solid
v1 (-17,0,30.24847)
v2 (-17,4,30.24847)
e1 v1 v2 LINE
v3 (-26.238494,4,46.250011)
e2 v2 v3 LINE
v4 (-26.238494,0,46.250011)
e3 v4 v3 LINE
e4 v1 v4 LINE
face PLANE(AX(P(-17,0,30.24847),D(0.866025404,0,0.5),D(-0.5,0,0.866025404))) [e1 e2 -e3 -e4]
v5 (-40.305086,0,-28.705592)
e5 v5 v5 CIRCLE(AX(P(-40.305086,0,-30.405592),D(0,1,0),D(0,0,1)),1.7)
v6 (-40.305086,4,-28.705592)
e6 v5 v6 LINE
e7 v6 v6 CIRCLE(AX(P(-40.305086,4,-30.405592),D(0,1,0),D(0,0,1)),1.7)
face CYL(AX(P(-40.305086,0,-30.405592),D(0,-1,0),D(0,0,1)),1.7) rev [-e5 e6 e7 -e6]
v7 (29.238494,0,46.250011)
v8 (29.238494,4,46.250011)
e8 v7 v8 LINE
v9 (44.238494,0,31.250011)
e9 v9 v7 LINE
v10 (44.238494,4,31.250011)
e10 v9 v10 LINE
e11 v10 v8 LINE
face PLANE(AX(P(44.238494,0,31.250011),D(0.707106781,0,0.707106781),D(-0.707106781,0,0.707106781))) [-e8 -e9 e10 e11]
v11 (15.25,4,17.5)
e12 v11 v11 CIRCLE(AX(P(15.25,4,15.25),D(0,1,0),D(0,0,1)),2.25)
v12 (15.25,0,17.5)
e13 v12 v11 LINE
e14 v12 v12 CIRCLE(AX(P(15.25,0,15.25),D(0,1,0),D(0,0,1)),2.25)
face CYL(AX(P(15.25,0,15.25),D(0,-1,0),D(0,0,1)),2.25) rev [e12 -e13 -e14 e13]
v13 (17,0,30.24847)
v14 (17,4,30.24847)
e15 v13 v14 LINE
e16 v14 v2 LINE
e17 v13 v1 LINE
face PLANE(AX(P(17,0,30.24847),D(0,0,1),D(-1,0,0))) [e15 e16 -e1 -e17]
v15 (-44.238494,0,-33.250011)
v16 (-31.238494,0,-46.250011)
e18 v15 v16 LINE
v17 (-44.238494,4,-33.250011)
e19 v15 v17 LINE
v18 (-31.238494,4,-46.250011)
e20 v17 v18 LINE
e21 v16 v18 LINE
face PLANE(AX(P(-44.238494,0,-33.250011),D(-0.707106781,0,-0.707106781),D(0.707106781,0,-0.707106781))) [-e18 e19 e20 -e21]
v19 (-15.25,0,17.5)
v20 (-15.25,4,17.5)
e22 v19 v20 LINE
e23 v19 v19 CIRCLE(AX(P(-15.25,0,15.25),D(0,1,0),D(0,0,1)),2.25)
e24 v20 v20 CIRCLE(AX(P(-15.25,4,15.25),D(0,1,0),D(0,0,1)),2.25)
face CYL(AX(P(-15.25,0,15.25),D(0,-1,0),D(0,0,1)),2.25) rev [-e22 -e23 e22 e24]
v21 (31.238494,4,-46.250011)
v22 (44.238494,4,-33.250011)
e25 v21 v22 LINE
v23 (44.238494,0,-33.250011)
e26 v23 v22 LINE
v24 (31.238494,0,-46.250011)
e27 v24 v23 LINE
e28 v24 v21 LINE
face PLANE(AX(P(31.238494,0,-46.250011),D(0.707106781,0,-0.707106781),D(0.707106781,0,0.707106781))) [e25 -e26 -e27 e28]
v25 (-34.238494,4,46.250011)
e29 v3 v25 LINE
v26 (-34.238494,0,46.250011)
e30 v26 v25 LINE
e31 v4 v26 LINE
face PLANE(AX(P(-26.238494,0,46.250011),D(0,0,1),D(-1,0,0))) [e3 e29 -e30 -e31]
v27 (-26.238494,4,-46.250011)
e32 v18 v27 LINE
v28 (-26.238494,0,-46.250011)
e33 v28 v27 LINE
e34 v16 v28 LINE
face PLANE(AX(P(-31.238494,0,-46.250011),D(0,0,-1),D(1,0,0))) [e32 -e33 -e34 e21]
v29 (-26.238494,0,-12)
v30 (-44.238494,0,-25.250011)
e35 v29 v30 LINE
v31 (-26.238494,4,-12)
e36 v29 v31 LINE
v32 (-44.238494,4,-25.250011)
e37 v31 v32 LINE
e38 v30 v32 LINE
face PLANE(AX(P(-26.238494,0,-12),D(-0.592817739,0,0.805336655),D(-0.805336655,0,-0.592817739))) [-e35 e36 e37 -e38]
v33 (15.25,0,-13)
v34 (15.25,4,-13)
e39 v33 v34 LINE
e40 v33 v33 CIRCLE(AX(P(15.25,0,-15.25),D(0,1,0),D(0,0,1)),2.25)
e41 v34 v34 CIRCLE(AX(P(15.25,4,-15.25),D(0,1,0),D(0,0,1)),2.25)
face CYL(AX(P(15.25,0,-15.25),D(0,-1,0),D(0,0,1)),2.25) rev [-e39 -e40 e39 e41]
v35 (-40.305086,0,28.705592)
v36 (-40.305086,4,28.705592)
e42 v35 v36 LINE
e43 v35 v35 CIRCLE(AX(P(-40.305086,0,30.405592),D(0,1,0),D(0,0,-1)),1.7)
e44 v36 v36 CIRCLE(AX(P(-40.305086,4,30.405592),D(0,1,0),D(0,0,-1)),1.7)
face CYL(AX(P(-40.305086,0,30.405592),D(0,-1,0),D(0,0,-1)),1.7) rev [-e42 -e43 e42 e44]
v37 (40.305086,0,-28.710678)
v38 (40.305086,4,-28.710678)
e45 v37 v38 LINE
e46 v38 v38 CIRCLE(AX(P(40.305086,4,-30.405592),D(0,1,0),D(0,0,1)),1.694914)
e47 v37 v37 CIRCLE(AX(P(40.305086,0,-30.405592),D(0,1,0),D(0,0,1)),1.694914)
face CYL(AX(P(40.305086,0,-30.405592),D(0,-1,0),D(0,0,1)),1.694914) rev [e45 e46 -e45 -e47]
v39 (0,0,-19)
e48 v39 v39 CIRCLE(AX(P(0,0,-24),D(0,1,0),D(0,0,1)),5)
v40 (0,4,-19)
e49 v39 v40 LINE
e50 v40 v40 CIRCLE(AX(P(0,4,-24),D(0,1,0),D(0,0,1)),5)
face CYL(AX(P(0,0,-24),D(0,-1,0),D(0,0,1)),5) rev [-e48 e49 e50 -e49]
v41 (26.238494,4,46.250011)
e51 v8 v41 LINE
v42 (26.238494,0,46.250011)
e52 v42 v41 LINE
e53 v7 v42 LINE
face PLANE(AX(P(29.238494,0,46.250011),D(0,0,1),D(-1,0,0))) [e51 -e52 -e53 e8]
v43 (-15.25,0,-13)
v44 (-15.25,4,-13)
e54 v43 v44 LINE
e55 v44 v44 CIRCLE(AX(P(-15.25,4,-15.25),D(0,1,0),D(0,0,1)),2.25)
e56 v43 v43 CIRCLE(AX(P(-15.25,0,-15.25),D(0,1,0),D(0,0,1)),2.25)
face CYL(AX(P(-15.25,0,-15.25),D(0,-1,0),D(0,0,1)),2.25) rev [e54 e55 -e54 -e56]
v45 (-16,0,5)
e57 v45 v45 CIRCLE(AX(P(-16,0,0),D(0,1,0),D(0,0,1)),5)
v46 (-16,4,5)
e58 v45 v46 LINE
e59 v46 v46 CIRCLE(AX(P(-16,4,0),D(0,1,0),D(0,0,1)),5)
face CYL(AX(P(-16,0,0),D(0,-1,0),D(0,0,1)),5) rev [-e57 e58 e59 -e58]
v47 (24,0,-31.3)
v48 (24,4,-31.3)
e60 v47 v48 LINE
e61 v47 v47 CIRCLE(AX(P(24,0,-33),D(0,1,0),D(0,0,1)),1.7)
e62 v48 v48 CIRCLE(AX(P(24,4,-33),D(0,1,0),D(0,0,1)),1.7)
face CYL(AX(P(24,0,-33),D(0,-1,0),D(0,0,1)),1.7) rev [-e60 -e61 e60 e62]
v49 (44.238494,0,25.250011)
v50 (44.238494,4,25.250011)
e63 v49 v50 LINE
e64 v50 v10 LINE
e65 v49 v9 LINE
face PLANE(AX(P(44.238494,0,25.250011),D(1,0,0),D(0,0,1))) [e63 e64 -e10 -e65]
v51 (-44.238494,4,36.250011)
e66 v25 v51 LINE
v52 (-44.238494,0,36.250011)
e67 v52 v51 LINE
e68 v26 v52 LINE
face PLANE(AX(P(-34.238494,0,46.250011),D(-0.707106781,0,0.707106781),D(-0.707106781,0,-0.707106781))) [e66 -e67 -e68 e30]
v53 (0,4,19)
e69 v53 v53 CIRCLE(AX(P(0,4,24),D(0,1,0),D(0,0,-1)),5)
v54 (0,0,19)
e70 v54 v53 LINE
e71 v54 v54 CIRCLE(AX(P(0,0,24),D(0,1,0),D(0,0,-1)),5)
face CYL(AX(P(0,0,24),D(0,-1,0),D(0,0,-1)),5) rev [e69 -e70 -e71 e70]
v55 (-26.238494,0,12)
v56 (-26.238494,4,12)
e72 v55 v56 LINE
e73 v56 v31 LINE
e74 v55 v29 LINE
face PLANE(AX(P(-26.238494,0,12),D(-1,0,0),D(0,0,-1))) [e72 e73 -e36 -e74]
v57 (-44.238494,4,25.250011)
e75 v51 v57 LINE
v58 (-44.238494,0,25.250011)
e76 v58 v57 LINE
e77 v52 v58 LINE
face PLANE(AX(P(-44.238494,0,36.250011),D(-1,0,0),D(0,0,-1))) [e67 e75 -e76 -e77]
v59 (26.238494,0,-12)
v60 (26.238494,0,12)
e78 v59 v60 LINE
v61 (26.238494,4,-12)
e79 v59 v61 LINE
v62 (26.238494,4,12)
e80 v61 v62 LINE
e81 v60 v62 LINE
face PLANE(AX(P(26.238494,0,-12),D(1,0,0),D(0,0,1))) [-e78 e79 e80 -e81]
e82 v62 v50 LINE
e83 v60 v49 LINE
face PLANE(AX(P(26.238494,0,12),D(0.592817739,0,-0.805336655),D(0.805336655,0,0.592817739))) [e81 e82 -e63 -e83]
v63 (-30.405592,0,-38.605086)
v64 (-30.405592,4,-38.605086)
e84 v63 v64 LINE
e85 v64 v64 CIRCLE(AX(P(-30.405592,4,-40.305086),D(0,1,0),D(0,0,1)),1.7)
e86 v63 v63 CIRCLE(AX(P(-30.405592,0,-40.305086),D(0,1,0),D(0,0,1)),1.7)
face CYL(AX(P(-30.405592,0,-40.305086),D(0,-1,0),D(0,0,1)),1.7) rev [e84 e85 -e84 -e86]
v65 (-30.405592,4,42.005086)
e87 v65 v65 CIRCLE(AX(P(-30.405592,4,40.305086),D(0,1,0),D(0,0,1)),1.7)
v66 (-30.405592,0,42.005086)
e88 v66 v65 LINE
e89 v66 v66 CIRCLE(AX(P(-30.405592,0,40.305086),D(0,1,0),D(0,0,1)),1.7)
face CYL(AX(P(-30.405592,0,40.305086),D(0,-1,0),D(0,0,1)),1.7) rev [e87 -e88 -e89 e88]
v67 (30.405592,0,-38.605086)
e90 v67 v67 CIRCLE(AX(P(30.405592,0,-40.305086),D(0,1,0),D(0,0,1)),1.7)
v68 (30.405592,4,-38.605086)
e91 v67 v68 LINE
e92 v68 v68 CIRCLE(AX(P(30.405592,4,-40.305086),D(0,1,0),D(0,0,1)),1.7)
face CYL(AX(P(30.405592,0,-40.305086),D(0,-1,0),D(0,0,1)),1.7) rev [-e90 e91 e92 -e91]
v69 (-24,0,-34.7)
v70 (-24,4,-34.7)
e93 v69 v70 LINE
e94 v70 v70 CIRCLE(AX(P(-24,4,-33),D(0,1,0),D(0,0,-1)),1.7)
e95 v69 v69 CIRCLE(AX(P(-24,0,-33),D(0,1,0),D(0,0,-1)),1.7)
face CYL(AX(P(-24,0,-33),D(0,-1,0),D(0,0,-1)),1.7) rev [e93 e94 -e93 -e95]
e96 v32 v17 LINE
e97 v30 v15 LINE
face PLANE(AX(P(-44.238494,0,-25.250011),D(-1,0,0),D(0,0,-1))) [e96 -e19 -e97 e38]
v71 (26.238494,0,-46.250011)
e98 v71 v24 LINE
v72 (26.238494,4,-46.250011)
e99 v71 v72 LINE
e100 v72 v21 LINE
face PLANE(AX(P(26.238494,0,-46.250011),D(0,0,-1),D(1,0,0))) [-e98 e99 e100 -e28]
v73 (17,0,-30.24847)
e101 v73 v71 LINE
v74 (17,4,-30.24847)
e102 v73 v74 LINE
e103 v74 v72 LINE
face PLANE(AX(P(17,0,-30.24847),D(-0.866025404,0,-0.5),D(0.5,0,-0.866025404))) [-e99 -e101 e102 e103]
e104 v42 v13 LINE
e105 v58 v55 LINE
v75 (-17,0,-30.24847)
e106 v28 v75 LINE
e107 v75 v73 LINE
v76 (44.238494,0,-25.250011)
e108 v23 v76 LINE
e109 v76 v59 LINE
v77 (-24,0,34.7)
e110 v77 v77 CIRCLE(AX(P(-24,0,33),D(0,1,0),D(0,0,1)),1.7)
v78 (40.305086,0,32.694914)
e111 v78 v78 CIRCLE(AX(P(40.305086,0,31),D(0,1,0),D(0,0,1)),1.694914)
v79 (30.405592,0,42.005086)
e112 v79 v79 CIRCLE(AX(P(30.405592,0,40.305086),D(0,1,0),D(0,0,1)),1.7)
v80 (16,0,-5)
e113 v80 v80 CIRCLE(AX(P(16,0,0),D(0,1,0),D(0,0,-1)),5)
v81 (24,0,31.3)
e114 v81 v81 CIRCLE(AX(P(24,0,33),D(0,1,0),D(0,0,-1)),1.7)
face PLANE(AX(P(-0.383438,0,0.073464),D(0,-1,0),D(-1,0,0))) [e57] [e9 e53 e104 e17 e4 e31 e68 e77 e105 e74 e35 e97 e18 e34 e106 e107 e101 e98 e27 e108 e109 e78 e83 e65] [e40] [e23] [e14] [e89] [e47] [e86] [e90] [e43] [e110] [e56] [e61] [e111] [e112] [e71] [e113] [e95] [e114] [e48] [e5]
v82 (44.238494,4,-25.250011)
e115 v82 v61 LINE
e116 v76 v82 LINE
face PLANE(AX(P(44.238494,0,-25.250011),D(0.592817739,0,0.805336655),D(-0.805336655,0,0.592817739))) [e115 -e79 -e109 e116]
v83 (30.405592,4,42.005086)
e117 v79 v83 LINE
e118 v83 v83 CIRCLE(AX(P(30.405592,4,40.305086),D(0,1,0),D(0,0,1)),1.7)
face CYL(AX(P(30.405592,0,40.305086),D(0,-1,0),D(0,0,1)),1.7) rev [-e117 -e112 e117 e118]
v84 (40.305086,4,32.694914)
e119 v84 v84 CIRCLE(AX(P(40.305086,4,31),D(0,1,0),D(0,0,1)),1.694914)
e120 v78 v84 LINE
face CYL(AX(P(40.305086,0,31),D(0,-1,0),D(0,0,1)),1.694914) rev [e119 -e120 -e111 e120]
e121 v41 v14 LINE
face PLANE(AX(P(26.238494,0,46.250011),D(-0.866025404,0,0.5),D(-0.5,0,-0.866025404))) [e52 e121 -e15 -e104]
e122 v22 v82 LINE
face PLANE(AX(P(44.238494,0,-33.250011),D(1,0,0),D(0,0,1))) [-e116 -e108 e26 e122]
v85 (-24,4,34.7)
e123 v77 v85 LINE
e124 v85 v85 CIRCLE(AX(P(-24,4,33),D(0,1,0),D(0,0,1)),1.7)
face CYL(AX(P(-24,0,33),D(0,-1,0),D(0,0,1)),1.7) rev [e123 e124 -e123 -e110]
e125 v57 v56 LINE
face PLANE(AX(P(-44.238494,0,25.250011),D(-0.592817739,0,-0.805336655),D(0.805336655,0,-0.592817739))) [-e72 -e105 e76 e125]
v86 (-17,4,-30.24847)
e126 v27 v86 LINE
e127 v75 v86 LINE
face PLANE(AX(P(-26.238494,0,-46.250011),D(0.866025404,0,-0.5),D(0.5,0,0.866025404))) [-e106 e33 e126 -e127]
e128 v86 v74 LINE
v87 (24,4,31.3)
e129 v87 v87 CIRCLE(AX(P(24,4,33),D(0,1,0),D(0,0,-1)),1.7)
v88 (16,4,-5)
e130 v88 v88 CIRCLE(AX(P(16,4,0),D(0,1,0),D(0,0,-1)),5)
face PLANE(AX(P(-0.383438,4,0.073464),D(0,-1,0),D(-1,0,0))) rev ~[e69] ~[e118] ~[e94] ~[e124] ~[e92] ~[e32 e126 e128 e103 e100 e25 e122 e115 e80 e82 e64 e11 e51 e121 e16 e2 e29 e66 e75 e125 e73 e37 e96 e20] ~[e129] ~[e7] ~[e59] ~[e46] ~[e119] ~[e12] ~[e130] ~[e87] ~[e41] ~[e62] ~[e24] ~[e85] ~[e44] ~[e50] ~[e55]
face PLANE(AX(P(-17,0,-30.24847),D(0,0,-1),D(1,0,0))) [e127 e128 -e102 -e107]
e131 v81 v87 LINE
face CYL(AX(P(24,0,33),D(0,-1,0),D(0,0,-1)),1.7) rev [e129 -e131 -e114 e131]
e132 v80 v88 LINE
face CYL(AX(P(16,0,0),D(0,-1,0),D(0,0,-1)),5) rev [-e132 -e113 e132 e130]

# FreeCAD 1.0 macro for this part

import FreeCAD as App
import Part
import Sketcher
from FreeCAD import Vector
Q = App.Units.Quantity


def add_polygon(sketch, points):
    """Adds a closed chain of lines whose ends are joined by coincident constraints."""
    first, n = sketch.GeometryCount, len(points)
    for a, b in zip(points, points[1:] + points[:1]):
        sketch.addGeometry(Part.LineSegment(App.Vector(*a, 0), App.Vector(*b, 0)), False)
    for i in range(n):
        sketch.addConstraint(Sketcher.Constraint("Coincident", first + i, 2, first + (i + 1) % n, 1))

doc = App.newDocument("Part")
body = doc.addObject("PartDesign::Body", "Body")

# Sketch on XZ plane
sketch1 = body.newObject("Sketcher::SketchObject", "Sketch")
sketch1.AttachmentSupport = (doc.getObject("XZ_Plane"), [""])
sketch1.MapMode = "FlatFace"
add_polygon(sketch1, [(44.2, -25.3), (44.2, -33.3), (31.2, -46.3), (26.2, -46.3), (17, -30.2), (-17, -30.2), (-26.2, -46.3), (-31.2, -46.3), (-44.2, -33.3), (-44.2, -25.3), (-26.2, -12), (-26.2, 12), (-44.2, 25.3), (-44.2, 36.3), (-34.2, 46.3), (-26.2, 46.3), (-17, 30.2), (17, 30.2), (26.2, 46.3), (29.2, 46.3), (44.2, 31.3), (44.2, 25.3), (26.2, 12), (26.2, -12)])  # lines 0-23
sketch1.addGeometry(Part.Circle(Vector(30.4, 40.3, 0), Vector(0, 0, 1), 1.7), False)  # 24
sketch1.addGeometry(Part.Circle(Vector(24, 33, 0), Vector(0, 0, 1), 1.7), False)  # 25
sketch1.addGeometry(Part.Circle(Vector(40.3, 31, 0), Vector(0, 0, 1), 1.7), False)  # 26
sketch1.addGeometry(Part.Circle(Vector(0, 24, 0), Vector(0, 0, 1), 5), False)  # 27
sketch1.addGeometry(Part.Circle(Vector(15.2, 15.2, 0), Vector(0, 0, 1), 2.2), False)  # 28
sketch1.addGeometry(Part.Circle(Vector(-30.4, 40.3, 0), Vector(0, 0, 1), 1.7), False)  # 29
sketch1.addGeometry(Part.Circle(Vector(-24, 33, 0), Vector(0, 0, 1), 1.7), False)  # 30
sketch1.addGeometry(Part.Circle(Vector(-40.3, 30.4, 0), Vector(0, 0, 1), 1.7), False)  # 31
sketch1.addGeometry(Part.Circle(Vector(-15.2, 15.2, 0), Vector(0, 0, 1), 2.2), False)  # 32
sketch1.addGeometry(Part.Circle(Vector(16, 0, 0), Vector(0, 0, 1), 5), False)  # 33
sketch1.addGeometry(Part.Circle(Vector(15.2, -15.2, 0), Vector(0, 0, 1), 2.2), False)  # 34
sketch1.addGeometry(Part.Circle(Vector(40.3, -30.4, 0), Vector(0, 0, 1), 1.7), False)  # 35
sketch1.addGeometry(Part.Circle(Vector(24, -33, 0), Vector(0, 0, 1), 1.7), False)  # 36
sketch1.addGeometry(Part.Circle(Vector(30.4, -40.3, 0), Vector(0, 0, 1), 1.7), False)  # 37
sketch1.addGeometry(Part.Circle(Vector(0, -24, 0), Vector(0, 0, 1), 5), False)  # 38
sketch1.addGeometry(Part.Circle(Vector(-16, 0, 0), Vector(0, 0, 1), 5), False)  # 39
sketch1.addGeometry(Part.Circle(Vector(-15.2, -15.2, 0), Vector(0, 0, 1), 2.2), False)  # 40
sketch1.addGeometry(Part.Circle(Vector(-40.3, -30.4, 0), Vector(0, 0, 1), 1.7), False)  # 41
sketch1.addGeometry(Part.Circle(Vector(-24, -33, 0), Vector(0, 0, 1), 1.7), False)  # 42
sketch1.addGeometry(Part.Circle(Vector(-30.4, -40.3, 0), Vector(0, 0, 1), 1.7), False)  # 43
sketch1.addConstraint(Sketcher.Constraint("Vertical", 0))
sketch1.addConstraint(Sketcher.Constraint("Horizontal", 2))
sketch1.addConstraint(Sketcher.Constraint("Horizontal", 4))
sketch1.addConstraint(Sketcher.Constraint("Horizontal", 6))
sketch1.addConstraint(Sketcher.Constraint("Vertical", 8))
sketch1.addConstraint(Sketcher.Constraint("Vertical", 10))
sketch1.addConstraint(Sketcher.Constraint("Vertical", 12))
sketch1.addConstraint(Sketcher.Constraint("Horizontal", 14))
sketch1.addConstraint(Sketcher.Constraint("Horizontal", 16))
sketch1.addConstraint(Sketcher.Constraint("Horizontal", 18))
sketch1.addConstraint(Sketcher.Constraint("Vertical", 20))
sketch1.addConstraint(Sketcher.Constraint("Vertical", 22))
sketch1.addConstraint(Sketcher.Constraint("Equal", 24, 25))
sketch1.addConstraint(Sketcher.Constraint("Equal", 25, 29))
sketch1.addConstraint(Sketcher.Constraint("Equal", 29, 30))
sketch1.addConstraint(Sketcher.Constraint("Equal", 30, 31))
sketch1.addConstraint(Sketcher.Constraint("Equal", 28, 32))
sketch1.addConstraint(Sketcher.Constraint("Equal", 27, 33))
sketch1.addConstraint(Sketcher.Constraint("Equal", 32, 34))
sketch1.addConstraint(Sketcher.Constraint("Equal", 26, 35))
sketch1.addConstraint(Sketcher.Constraint("Equal", 31, 36))
sketch1.addConstraint(Sketcher.Constraint("Equal", 36, 37))
sketch1.addConstraint(Sketcher.Constraint("Equal", 33, 38))
sketch1.addConstraint(Sketcher.Constraint("Equal", 38, 39))
sketch1.addConstraint(Sketcher.Constraint("Equal", 34, 40))
sketch1.addConstraint(Sketcher.Constraint("Equal", 37, 41))
sketch1.addConstraint(Sketcher.Constraint("Equal", 41, 42))
sketch1.addConstraint(Sketcher.Constraint("Equal", 42, 43))
sketch1.addConstraint(Sketcher.Constraint("Symmetric", 32, 3, 34, 3, -1, 1))
sketch1.addConstraint(Sketcher.Constraint("Symmetric", 31, 3, 35, 3, -1, 1))
sketch1.addConstraint(Sketcher.Constraint("Symmetric", 30, 3, 36, 3, -1, 1))
sketch1.addConstraint(Sketcher.Constraint("Symmetric", 29, 3, 37, 3, -1, 1))
sketch1.addConstraint(Sketcher.Constraint("Symmetric", 27, 3, 38, 3, -1, 1))
sketch1.addConstraint(Sketcher.Constraint("Symmetric", 33, 3, 39, 3, -1, 1))
sketch1.addConstraint(Sketcher.Constraint("Symmetric", 28, 3, 40, 3, -1, 1))
sketch1.addConstraint(Sketcher.Constraint("Symmetric", 25, 3, 42, 3, -1, 1))
sketch1.addConstraint(Sketcher.Constraint("Symmetric", 24, 3, 43, 3, -1, 1))
sketch1.addConstraint(Sketcher.Constraint("Symmetric", 2, 2, 14, 2, -1, 1))
sketch1.addConstraint(Sketcher.Constraint("Symmetric", 3, 2, 15, 2, -1, 1))
sketch1.addConstraint(Sketcher.Constraint("Symmetric", 5, 2, 17, 2, -1, 1))
sketch1.addConstraint(Sketcher.Constraint("Symmetric", 8, 2, 20, 2, -1, 1))
sketch1.addConstraint(Sketcher.Constraint("Symmetric", 9, 2, 21, 2, -1, 1))
sketch1.addConstraint(Sketcher.Constraint("Symmetric", 11, 2, 23, 2, -1, 1))
sketch1.addConstraint(Sketcher.Constraint("Symmetric", 24, 3, 29, 3, -2))
sketch1.addConstraint(Sketcher.Constraint("Symmetric", 25, 3, 30, 3, -2))
sketch1.addConstraint(Sketcher.Constraint("Symmetric", 28, 3, 32, 3, -2))
sketch1.addConstraint(Sketcher.Constraint("Symmetric", 35, 3, 41, 3, -2))
sketch1.addConstraint(Sketcher.Constraint("Symmetric", 2, 2, 5, 2, -2))
sketch1.addConstraint(Sketcher.Constraint("Symmetric", 0, 2, 7, 2, -2))
sketch1.addConstraint(Sketcher.Constraint("PointOnObject", 27, 3, -2))
sketch1.addConstraint(Sketcher.Constraint("PointOnObject", 33, 3, -1))
sketch1.addConstraint(Sketcher.Constraint("Perpendicular", 1, 7))
sketch1.addConstraint(Sketcher.Constraint("Perpendicular", 7, 13))
sketch1.addConstraint(Sketcher.Constraint("Parallel", 5, 17))
sketch1.addConstraint(Sketcher.Constraint("Perpendicular", 13, 19))
sketch1.addConstraint(Sketcher.Constraint("Parallel", 11, 23))
sketch1.addConstraint(Sketcher.Constraint("Horizontal", 11, 2, 20, 2))
sketch1.addConstraint(Sketcher.Constraint("Horizontal", 10, 2, 21, 2))
sketch1.addConstraint(Sketcher.Constraint("Vertical", 26, 3, 35, 3))
sketch1.addConstraint(Sketcher.Constraint("Vertical", 5, 2, 9, 2))
sketch1.addConstraint(Sketcher.Constraint("Vertical", 4, 2, 15, 2))
sketch1.addConstraint(Sketcher.Constraint("Equal", 2, 6))
sketch1.addConstraint(Sketcher.Constraint("Equal", 14, 0))
sketch1.addConstraint(Sketcher.Constraint("Diameter", 27, 10.0))
sketch1.addConstraint(Sketcher.Constraint("Diameter", 24, 3.4))
sketch1.addConstraint(Sketcher.Constraint("Diameter", 28, 4.5))
sketch1.addConstraint(Sketcher.Constraint("DistanceX", 2, 2, 2, 1, 5.0))
sketch1.addConstraint(Sketcher.Constraint("DistanceX", 4, 2, 4, 1, 34.0))
sketch1.addConstraint(Sketcher.Constraint("DistanceX", 14, 1, 14, 2, 8.0))
sketch1.addConstraint(Sketcher.Constraint("DistanceX", 18, 1, 18, 2, 3.0))
sketch1.addConstraint(Sketcher.Constraint("DistanceY", 10, 1, 10, 2, 24.0))
sketch1.addConstraint(Sketcher.Constraint("Angle", 3, Q("120 deg")))
sketch1.addConstraint(Sketcher.Constraint("DistanceX", -1, 1, 25, 3, 24.0))
sketch1.addConstraint(Sketcher.Constraint("DistanceY", -1, 1, 25, 3, 33.0))
sketch1.addConstraint(Sketcher.Constraint("DistanceY", -1, 1, 26, 3, 31.0))
sketch1.addConstraint(Sketcher.Constraint("DistanceY", -1, 1, 27, 3, 24.0))
sketch1.addConstraint(Sketcher.Constraint("DistanceX", -1, 1, 33, 3, 16.0))
sketch1.addConstraint(Sketcher.Constraint("DistanceX", 1, 2, 0, 2, 13.0))
sketch1.addConstraint(Sketcher.Constraint("DistanceX", 32, 3, 28, 3, 30.5))
sketch1.addConstraint(Sketcher.Constraint("DistanceY", 34, 3, 28, 3, 30.5))
sketch1.addConstraint(Sketcher.Constraint("Diameter", 26, 3.389827))
sketch1.addConstraint(Sketcher.Constraint("Distance", 9, 22.350901))
sketch1.addConstraint(Sketcher.Constraint("DistanceX", -1, 1, 24, 3, 30.405592))
sketch1.addConstraint(Sketcher.Constraint("DistanceY", -1, 1, 31, 3, 30.405592))
sketch1.addConstraint(Sketcher.Constraint("DistanceY", 3, 2, -1, 1, 30.24847))
sketch1.addConstraint(Sketcher.Constraint("DistanceX", 29, 3, 26, 3, 70.710678))
sketch1.addConstraint(Sketcher.Constraint("DistanceY", -1, 1, 24, 3, 40.305086))
pad1 = body.newObject("PartDesign::Pad", "Pad")
pad1.Profile = sketch1
pad1.Length = 4
pad1.Reversed = True

doc.recompute()
